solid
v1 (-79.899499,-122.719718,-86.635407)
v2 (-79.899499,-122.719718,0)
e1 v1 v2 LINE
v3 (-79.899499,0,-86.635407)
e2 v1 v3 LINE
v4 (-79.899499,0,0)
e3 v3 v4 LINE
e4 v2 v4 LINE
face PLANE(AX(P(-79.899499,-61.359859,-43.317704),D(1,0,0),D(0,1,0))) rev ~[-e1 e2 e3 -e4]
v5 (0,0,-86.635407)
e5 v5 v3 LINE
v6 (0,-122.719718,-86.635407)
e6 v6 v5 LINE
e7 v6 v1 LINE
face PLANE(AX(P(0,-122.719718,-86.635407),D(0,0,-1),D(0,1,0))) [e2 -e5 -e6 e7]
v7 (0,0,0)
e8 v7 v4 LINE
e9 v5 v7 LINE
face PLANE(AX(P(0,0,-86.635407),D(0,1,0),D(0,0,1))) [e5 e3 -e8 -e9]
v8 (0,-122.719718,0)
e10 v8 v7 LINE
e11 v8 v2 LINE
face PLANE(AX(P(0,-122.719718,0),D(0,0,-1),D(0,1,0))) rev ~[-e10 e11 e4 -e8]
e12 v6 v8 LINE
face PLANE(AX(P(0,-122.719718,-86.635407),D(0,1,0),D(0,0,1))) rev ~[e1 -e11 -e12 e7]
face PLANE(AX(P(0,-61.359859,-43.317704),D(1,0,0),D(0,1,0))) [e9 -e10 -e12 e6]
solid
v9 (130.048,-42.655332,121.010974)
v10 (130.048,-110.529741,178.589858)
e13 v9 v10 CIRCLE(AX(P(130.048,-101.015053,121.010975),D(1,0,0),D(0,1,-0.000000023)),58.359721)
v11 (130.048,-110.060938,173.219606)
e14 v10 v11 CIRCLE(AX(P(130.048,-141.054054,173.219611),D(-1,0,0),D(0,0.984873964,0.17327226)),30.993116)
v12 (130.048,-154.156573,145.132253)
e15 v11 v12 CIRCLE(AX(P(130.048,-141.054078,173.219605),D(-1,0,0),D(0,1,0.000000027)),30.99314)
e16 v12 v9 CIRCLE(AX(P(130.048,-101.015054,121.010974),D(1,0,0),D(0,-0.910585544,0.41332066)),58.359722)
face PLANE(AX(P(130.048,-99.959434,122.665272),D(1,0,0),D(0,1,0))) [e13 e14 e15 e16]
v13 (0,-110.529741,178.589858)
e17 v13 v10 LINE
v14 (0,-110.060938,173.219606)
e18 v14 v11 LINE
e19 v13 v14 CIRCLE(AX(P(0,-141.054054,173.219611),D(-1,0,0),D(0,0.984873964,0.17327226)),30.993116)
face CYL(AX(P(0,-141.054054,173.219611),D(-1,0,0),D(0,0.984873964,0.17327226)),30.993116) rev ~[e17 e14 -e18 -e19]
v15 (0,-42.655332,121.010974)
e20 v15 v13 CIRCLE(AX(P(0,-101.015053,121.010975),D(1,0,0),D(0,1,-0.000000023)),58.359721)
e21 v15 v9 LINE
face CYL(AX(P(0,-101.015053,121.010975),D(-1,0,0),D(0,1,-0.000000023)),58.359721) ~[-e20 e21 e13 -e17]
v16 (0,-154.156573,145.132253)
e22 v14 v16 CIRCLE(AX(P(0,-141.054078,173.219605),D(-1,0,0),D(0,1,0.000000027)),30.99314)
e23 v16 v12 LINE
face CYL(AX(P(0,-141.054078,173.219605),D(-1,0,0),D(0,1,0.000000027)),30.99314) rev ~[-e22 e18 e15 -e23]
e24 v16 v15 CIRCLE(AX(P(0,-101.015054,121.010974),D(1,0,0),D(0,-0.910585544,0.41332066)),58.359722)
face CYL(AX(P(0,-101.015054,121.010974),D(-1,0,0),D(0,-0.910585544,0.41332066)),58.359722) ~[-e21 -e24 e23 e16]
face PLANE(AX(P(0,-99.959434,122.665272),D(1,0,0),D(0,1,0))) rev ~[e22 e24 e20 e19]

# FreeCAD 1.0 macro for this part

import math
import FreeCAD as App
import Part
import Sketcher
Q = App.Units.Quantity

doc = App.newDocument("Part")
params = doc.addObject("Spreadsheet::Sheet", "Params")
for row, (alias, value) in enumerate([
    ("pad1_length", "79.899499 mm"),
    ("pad2_length", "5.12 in"),
], start=1):
    params.set(f"A{row}", alias)
    params.set(f"B{row}", "=" + value)
    params.setAlias(f"B{row}", alias)

body = doc.addObject("PartDesign::Body", "Body")

# Sketch on YZ plane
sketch1 = body.newObject("Sketcher::SketchObject", "Sketch")
sketch1.AttachmentSupport = (doc.getObject("YZ_Plane"), [""])
sketch1.MapMode = "FlatFace"
sketch1.addGeometry(Part.LineSegment(App.Vector(-123, 0, 0), App.Vector(-123, -87, 0)), False)
sketch1.addGeometry(Part.LineSegment(App.Vector(-123, -87, 0), App.Vector(0, -87, 0)), False)
sketch1.addGeometry(Part.LineSegment(App.Vector(0, -87, 0), App.Vector(0, 0, 0)), False)
sketch1.addGeometry(Part.LineSegment(App.Vector(0, 0, 0), App.Vector(-123, 0, 0)), False)
sketch1.addConstraint(Sketcher.Constraint("Coincident", 0, 2, 1, 1))
sketch1.addConstraint(Sketcher.Constraint("Coincident", 1, 2, 2, 1))
sketch1.addConstraint(Sketcher.Constraint("Coincident", 2, 2, 3, 1))
sketch1.addConstraint(Sketcher.Constraint("Coincident", 3, 2, 0, 1))
sketch1.addConstraint(Sketcher.Constraint("Vertical", 0))
sketch1.addConstraint(Sketcher.Constraint("Horizontal", 1))
sketch1.addConstraint(Sketcher.Constraint("Vertical", 2))
sketch1.addConstraint(Sketcher.Constraint("Horizontal", 3))
sketch1.addConstraint(Sketcher.Constraint("Coincident", 2, 2, -1, 1))
sketch1.addConstraint(Sketcher.Constraint("DistanceX", 1, 1, 1, 2, Q("122.719718 mm")))
sketch1.addConstraint(Sketcher.Constraint("DistanceY", 0, 2, 0, 1, Q("86.635407 mm")))
pad1 = body.newObject("PartDesign::Pad", "Pad")
pad1.Profile = sketch1
pad1.setExpression("Length", "Params.pad1_length")
pad1.Reversed = True
body2 = doc.addObject("PartDesign::Body", "Body001")

# Sketch on YZ plane
sketch2 = body2.newObject("Sketcher::SketchObject", "Sketch001")
sketch2.AttachmentSupport = (doc.getObject("YZ_Plane001"), [""])
sketch2.MapMode = "FlatFace"
sketch2.addGeometry(Part.ArcOfCircle(Part.Circle(App.Vector(-101, 121, 0), App.Vector(0, 0, 1), 58), math.radians(156), math.radians(360)), False)
sketch2.addGeometry(Part.ArcOfCircle(Part.Circle(App.Vector(-101, 121, 0), App.Vector(0, 0, 1), 58), math.radians(0), math.radians(99)), False)
sketch2.addGeometry(Part.ArcOfCircle(Part.Circle(App.Vector(-141, 173, 0), App.Vector(0, 0, 1), 31), math.radians(0), math.radians(9.98)), False)
sketch2.addGeometry(Part.ArcOfCircle(Part.Circle(App.Vector(-141, 173, 0), App.Vector(0, 0, 1), 31), math.radians(-115), math.radians(0)), False)
sketch2.addConstraint(Sketcher.Constraint("Tangent", 0, 2, 1, 1))
sketch2.addConstraint(Sketcher.Constraint("Coincident", 1, 2, 2, 2))
sketch2.addConstraint(Sketcher.Constraint("Tangent", 2, 1, 3, 2))
sketch2.addConstraint(Sketcher.Constraint("Coincident", 3, 1, 0, 1))
sketch2.addConstraint(Sketcher.Constraint("Equal", 0, 1))
sketch2.addConstraint(Sketcher.Constraint("Horizontal", 1, 3, 0, 2))
sketch2.addConstraint(Sketcher.Constraint("Horizontal", 3, 3, 2, 1))
sketch2.addConstraint(Sketcher.Constraint("Radius", 0, Q("58.359722 mm")))
sketch2.addConstraint(Sketcher.Constraint("Radius", 3, Q("30.99314 mm")))
sketch2.addConstraint(Sketcher.Constraint("Radius", 2, Q("30.993116 mm")))
sketch2.addConstraint(Sketcher.Constraint("DistanceX", 2, 3, 1, 3, Q("40.039001 mm")))
sketch2.addConstraint(Sketcher.Constraint("DistanceY", -1, 1, 2, 3, Q("173.219611 mm")))
sketch2.addConstraint(Sketcher.Constraint("DistanceX", 0, 2, -1, 1, Q("42.655332 mm")))
sketch2.addConstraint(Sketcher.Constraint("DistanceX", 1, 2, -1, 1, Q("110.529741 mm")))
pad2 = body2.newObject("PartDesign::Pad", "Pad001")
pad2.Profile = sketch2
pad2.setExpression("Length", "Params.pad2_length")

doc.recompute()
